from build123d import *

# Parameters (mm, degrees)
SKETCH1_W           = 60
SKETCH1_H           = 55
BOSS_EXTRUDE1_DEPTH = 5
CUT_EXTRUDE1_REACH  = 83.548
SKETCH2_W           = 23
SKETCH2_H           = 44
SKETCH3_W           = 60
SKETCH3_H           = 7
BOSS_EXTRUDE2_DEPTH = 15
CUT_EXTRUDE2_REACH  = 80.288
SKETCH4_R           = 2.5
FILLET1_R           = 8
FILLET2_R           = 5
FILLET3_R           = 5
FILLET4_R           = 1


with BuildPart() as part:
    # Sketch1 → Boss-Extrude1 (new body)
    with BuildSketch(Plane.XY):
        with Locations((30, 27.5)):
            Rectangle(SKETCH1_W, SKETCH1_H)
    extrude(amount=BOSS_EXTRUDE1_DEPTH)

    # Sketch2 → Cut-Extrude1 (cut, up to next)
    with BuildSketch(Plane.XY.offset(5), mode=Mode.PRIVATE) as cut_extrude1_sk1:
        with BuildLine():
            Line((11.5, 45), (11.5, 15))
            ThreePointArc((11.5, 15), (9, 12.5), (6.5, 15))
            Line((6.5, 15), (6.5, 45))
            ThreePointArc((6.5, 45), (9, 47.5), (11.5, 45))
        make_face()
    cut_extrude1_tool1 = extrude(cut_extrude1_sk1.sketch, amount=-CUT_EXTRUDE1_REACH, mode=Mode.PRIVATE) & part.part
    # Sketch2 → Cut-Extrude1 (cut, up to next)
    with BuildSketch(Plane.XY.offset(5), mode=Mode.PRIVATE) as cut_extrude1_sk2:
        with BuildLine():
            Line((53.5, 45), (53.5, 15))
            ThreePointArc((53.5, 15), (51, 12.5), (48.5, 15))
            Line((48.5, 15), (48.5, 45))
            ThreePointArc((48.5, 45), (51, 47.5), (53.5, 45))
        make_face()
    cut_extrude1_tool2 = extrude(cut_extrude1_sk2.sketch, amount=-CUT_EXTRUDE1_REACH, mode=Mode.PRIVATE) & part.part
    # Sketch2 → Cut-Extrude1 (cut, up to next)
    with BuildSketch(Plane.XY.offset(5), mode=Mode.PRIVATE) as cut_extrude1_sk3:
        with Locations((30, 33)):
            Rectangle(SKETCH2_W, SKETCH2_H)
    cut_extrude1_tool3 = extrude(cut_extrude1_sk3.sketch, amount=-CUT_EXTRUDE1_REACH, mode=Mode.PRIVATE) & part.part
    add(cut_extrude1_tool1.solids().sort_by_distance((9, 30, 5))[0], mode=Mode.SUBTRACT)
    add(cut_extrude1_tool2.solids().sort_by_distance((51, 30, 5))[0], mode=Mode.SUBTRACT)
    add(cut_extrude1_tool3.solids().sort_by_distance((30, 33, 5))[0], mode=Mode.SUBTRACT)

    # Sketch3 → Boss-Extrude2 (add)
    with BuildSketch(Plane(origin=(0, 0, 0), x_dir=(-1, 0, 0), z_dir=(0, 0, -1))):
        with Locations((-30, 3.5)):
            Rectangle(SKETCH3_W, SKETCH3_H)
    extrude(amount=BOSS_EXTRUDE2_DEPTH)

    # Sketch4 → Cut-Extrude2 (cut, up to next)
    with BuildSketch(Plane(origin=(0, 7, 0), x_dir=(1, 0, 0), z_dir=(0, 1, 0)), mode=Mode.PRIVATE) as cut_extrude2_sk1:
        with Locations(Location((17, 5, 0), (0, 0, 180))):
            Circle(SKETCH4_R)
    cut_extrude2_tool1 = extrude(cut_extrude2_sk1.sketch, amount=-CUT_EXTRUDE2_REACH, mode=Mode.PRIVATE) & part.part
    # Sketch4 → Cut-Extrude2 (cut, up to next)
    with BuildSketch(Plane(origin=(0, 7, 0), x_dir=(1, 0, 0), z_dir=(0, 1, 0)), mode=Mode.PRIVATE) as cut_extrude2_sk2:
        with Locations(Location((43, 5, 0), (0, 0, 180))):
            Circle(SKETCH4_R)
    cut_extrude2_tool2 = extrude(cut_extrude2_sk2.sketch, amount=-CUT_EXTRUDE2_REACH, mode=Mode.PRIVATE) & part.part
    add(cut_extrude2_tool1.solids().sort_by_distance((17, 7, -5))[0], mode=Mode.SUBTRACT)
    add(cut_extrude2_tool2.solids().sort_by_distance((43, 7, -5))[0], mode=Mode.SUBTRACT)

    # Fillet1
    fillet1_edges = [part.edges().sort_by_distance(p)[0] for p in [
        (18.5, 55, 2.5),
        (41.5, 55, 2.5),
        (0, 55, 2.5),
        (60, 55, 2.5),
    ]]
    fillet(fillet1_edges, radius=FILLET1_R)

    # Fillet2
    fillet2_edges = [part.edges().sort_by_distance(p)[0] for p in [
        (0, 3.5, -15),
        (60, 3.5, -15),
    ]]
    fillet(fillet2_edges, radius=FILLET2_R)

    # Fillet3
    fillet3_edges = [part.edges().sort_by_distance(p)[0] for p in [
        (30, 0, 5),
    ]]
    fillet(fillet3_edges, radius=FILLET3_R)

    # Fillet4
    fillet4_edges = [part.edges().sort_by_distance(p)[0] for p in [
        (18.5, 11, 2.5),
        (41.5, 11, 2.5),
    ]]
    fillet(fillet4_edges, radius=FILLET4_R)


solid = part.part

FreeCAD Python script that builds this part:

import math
import FreeCAD as App
import Part
import Sketcher
from FreeCAD import Vector


def edges_at(feature, points):
    """Names of the edges that pass closest to the given points."""
    edges = feature.Shape.Edges
    near = lambda p: min(range(len(edges)), key=lambda i: edges[i].distToShape(Part.Vertex(*p))[0])
    return sorted({f"Edge{near(p) + 1}" for p in points})

doc = App.newDocument("Part")
params = doc.addObject("Spreadsheet::Sheet", "Params")
for row, (alias, value) in enumerate([
    ("sketch1_width", "60 mm"),
    ("sketch1_height", "55 mm"),
    ("pad1_length", "5 mm"),
    ("sketch2_radius", "2.5 mm"),
    ("sketch2_height", "30 mm"),
    ("sketch3_radius", "2.5 mm"),
    ("sketch3_height", "30 mm"),
    ("sketch4_width", "23 mm"),
    ("sketch4_height", "44 mm"),
    ("sketch5_width", "60 mm"),
    ("sketch5_height", "7 mm"),
    ("pad2_length", "15 mm"),
    ("sketch6_diameter", "5 mm"),
    ("sketch7_diameter", "5 mm"),
    ("fillet_radius", "8 mm"),
    ("fillet2_radius", "5 mm"),
    ("fillet3_radius", "5 mm"),
    ("fillet4_radius", "1 mm"),
], start=1):
    params.set(f"A{row}", alias)
    params.set(f"B{row}", "=" + value)
    params.setAlias(f"B{row}", alias)

body = doc.addObject("PartDesign::Body", "Body")

# Sketch on XY plane
sketch1 = body.newObject("Sketcher::SketchObject", "Sketch")
sketch1.AttachmentSupport = (doc.getObject("XY_Plane"), [""])
sketch1.MapMode = "FlatFace"
sketch1.addGeometry([
    Part.LineSegment(Vector(0, 55, 0), Vector(0, 0, 0)),
    Part.LineSegment(Vector(0, 0, 0), Vector(60, 0, 0)),
    Part.LineSegment(Vector(60, 0, 0), Vector(60, 55, 0)),
    Part.LineSegment(Vector(60, 55, 0), Vector(0, 55, 0)),
], False)
sketch1.addConstraint([
    Sketcher.Constraint("Coincident", 0, 2, 1, 1),
    Sketcher.Constraint("Coincident", 1, 2, 2, 1),
    Sketcher.Constraint("Coincident", 2, 2, 3, 1),
    Sketcher.Constraint("Coincident", 3, 2, 0, 1),
    Sketcher.Constraint("Vertical", 0),
    Sketcher.Constraint("Horizontal", 1),
    Sketcher.Constraint("Vertical", 2),
    Sketcher.Constraint("Horizontal", 3),
    Sketcher.Constraint("Coincident", 0, 2, -1, 1),
    Sketcher.Constraint("DistanceX", 1, 1, 1, 2, 60.0),
    Sketcher.Constraint("DistanceY", 0, 2, 0, 1, 55.0),
])
sketch1.setExpression("Constraints[9]", "Params.sketch1_width")
sketch1.setExpression("Constraints[10]", "Params.sketch1_height")
pad1 = body.newObject("PartDesign::Pad", "Pad")
pad1.Profile = sketch1
pad1.setExpression("Length", "Params.pad1_length")

# Sketch on XY plane
sketch2 = body.newObject("Sketcher::SketchObject", "Sketch001")
sketch2.AttachmentSupport = (doc.getObject("XY_Plane"), [""])
sketch2.MapMode = "FlatFace"
sketch2.AttachmentOffset = App.Placement(Vector(0, 0, 5), App.Rotation())
sketch2.addGeometry([
    Part.LineSegment(Vector(11.5, 15, 0), Vector(11.5, 45, 0)),
    Part.ArcOfCircle(Part.Circle(Vector(9, 45, 0), Vector(0, 0, 1), 2.5), math.radians(0), math.radians(180)),
    Part.LineSegment(Vector(6.5, 45, 0), Vector(6.5, 15, 0)),
    Part.ArcOfCircle(Part.Circle(Vector(9, 15, 0), Vector(0, 0, 1), 2.5), math.radians(180), math.radians(360)),
], False)
sketch2.addConstraint([
    Sketcher.Constraint("Tangent", 0, 2, 1, 1),
    Sketcher.Constraint("Tangent", 1, 2, 2, 1),
    Sketcher.Constraint("Tangent", 2, 2, 3, 1),
    Sketcher.Constraint("Tangent", 3, 2, 0, 1),
    Sketcher.Constraint("Vertical", 0),
    Sketcher.Constraint("Vertical", 2),
    Sketcher.Constraint("Radius", 1, 2.5),
    Sketcher.Constraint("DistanceY", 0, 1, 0, 2, 30.0),
    Sketcher.Constraint("DistanceX", -1, 1, 1, 3, 9.0),
    Sketcher.Constraint("DistanceY", -1, 1, 1, 3, 45.0),
])
sketch2.setExpression("Constraints[6]", "Params.sketch2_radius")
sketch2.setExpression("Constraints[7]", "Params.sketch2_height")
pocket1 = body.newObject("PartDesign::Pocket", "Pocket")
pocket1.Profile = sketch2
pocket1.Type = "UpToFirst"

# Sketch on XY plane
sketch3 = body.newObject("Sketcher::SketchObject", "Sketch002")
sketch3.AttachmentSupport = (doc.getObject("XY_Plane"), [""])
sketch3.MapMode = "FlatFace"
sketch3.AttachmentOffset = App.Placement(Vector(0, 0, 5), App.Rotation())
sketch3.addGeometry([
    Part.LineSegment(Vector(53.5, 15, 0), Vector(53.5, 45, 0)),
    Part.ArcOfCircle(Part.Circle(Vector(51, 45, 0), Vector(0, 0, 1), 2.5), math.radians(0), math.radians(180)),
    Part.LineSegment(Vector(48.5, 45, 0), Vector(48.5, 15, 0)),
    Part.ArcOfCircle(Part.Circle(Vector(51, 15, 0), Vector(0, 0, 1), 2.5), math.radians(180), math.radians(360)),
], False)
sketch3.addConstraint([
    Sketcher.Constraint("Tangent", 0, 2, 1, 1),
    Sketcher.Constraint("Tangent", 1, 2, 2, 1),
    Sketcher.Constraint("Tangent", 2, 2, 3, 1),
    Sketcher.Constraint("Tangent", 3, 2, 0, 1),
    Sketcher.Constraint("Vertical", 0),
    Sketcher.Constraint("Vertical", 2),
    Sketcher.Constraint("Radius", 1, 2.5),
    Sketcher.Constraint("DistanceY", 0, 1, 0, 2, 30.0),
    Sketcher.Constraint("DistanceX", -1, 1, 1, 3, 51.0),
    Sketcher.Constraint("DistanceY", -1, 1, 1, 3, 45.0),
])
sketch3.setExpression("Constraints[6]", "Params.sketch3_radius")
sketch3.setExpression("Constraints[7]", "Params.sketch3_height")
pocket2 = body.newObject("PartDesign::Pocket", "Pocket001")
pocket2.Profile = sketch3
pocket2.Type = "UpToFirst"

# Sketch on XY plane
sketch4 = body.newObject("Sketcher::SketchObject", "Sketch003")
sketch4.AttachmentSupport = (doc.getObject("XY_Plane"), [""])
sketch4.MapMode = "FlatFace"
sketch4.AttachmentOffset = App.Placement(Vector(0, 0, 5), App.Rotation())
sketch4.addGeometry([
    Part.LineSegment(Vector(18.5, 55, 0), Vector(18.5, 11, 0)),
    Part.LineSegment(Vector(18.5, 11, 0), Vector(41.5, 11, 0)),
    Part.LineSegment(Vector(41.5, 11, 0), Vector(41.5, 55, 0)),
    Part.LineSegment(Vector(41.5, 55, 0), Vector(18.5, 55, 0)),
], False)
sketch4.addConstraint([
    Sketcher.Constraint("Coincident", 0, 2, 1, 1),
    Sketcher.Constraint("Coincident", 1, 2, 2, 1),
    Sketcher.Constraint("Coincident", 2, 2, 3, 1),
    Sketcher.Constraint("Coincident", 3, 2, 0, 1),
    Sketcher.Constraint("Vertical", 0),
    Sketcher.Constraint("Horizontal", 1),
    Sketcher.Constraint("Vertical", 2),
    Sketcher.Constraint("Horizontal", 3),
    Sketcher.Constraint("DistanceX", 1, 1, 1, 2, 23.0),
    Sketcher.Constraint("DistanceY", 0, 2, 0, 1, 44.0),
    Sketcher.Constraint("DistanceY", -1, 1, 0, 2, 11.0),
    Sketcher.Constraint("DistanceX", -1, 1, 0, 2, 18.5),
])
sketch4.setExpression("Constraints[8]", "Params.sketch4_width")
sketch4.setExpression("Constraints[9]", "Params.sketch4_height")
pocket3 = body.newObject("PartDesign::Pocket", "Pocket002")
pocket3.Profile = sketch4
pocket3.Type = "UpToFirst"

# Sketch on XY plane
sketch5 = body.newObject("Sketcher::SketchObject", "Sketch004")
sketch5.AttachmentSupport = (doc.getObject("XY_Plane"), [""])
sketch5.MapMode = "FlatFace"
sketch5.addGeometry([
    Part.LineSegment(Vector(60, 7, 0), Vector(60, 0, 0)),
    Part.LineSegment(Vector(60, 0, 0), Vector(0, 0, 0)),
    Part.LineSegment(Vector(0, 0, 0), Vector(0, 7, 0)),
    Part.LineSegment(Vector(0, 7, 0), Vector(60, 7, 0)),
], False)
sketch5.addConstraint([
    Sketcher.Constraint("Coincident", 0, 2, 1, 1),
    Sketcher.Constraint("Coincident", 1, 2, 2, 1),
    Sketcher.Constraint("Coincident", 2, 2, 3, 1),
    Sketcher.Constraint("Coincident", 3, 2, 0, 1),
    Sketcher.Constraint("Vertical", 0),
    Sketcher.Constraint("Horizontal", 1),
    Sketcher.Constraint("Vertical", 2),
    Sketcher.Constraint("Horizontal", 3),
    Sketcher.Constraint("Coincident", 1, 2, -1, 1),
    Sketcher.Constraint("DistanceX", 1, 2, 1, 1, 60.0),
    Sketcher.Constraint("DistanceY", 0, 2, 0, 1, 7.0),
])
sketch5.setExpression("Constraints[9]", "Params.sketch5_width")
sketch5.setExpression("Constraints[10]", "Params.sketch5_height")
pad2 = body.newObject("PartDesign::Pad", "Pad001")
pad2.Profile = sketch5
pad2.setExpression("Length", "Params.pad2_length")
pad2.Reversed = True

# Sketch on XZ plane
sketch6 = body.newObject("Sketcher::SketchObject", "Sketch005")
sketch6.AttachmentSupport = (doc.getObject("XZ_Plane"), [""])
sketch6.MapMode = "FlatFace"
sketch6.AttachmentOffset = App.Placement(Vector(0, 0, -7), App.Rotation())
sketch6.addGeometry(Part.Circle(Vector(17, -5, 0), Vector(0, 0, 1), 2.5), False)
sketch6.addConstraint([
    Sketcher.Constraint("Diameter", 0, 5.0),
    Sketcher.Constraint("DistanceX", -1, 1, 0, 3, 17.0),
    Sketcher.Constraint("DistanceY", 0, 3, -1, 1, 5.0),
])
sketch6.setExpression("Constraints[0]", "Params.sketch6_diameter")
pocket4 = body.newObject("PartDesign::Pocket", "Pocket003")
pocket4.Profile = sketch6
pocket4.Type = "UpToFirst"
pocket4.Reversed = True

# Sketch on XZ plane
sketch7 = body.newObject("Sketcher::SketchObject", "Sketch006")
sketch7.AttachmentSupport = (doc.getObject("XZ_Plane"), [""])
sketch7.MapMode = "FlatFace"
sketch7.AttachmentOffset = App.Placement(Vector(0, 0, -7), App.Rotation())
sketch7.addGeometry(Part.Circle(Vector(43, -5, 0), Vector(0, 0, 1), 2.5), False)
sketch7.addConstraint([
    Sketcher.Constraint("Diameter", 0, 5.0),
    Sketcher.Constraint("DistanceX", -1, 1, 0, 3, 43.0),
    Sketcher.Constraint("DistanceY", 0, 3, -1, 1, 5.0),
])
sketch7.setExpression("Constraints[0]", "Params.sketch7_diameter")
pocket5 = body.newObject("PartDesign::Pocket", "Pocket004")
pocket5.Profile = sketch7
pocket5.Type = "UpToFirst"
pocket5.Reversed = True
doc.recompute()

fillet = body.newObject("PartDesign::Fillet", "Fillet")
fillet.Base = (pocket5, edges_at(pocket5, [
    (18.5, 55, 2.5),
    (41.5, 55, 2.5),
    (0, 55, 2.5),
    (60, 55, 2.5),
]))
fillet.setExpression("Radius", "Params.fillet_radius")
doc.recompute()

fillet2 = body.newObject("PartDesign::Fillet", "Fillet001")
fillet2.Base = (fillet, edges_at(fillet, [(0, 3.5, -15), (60, 3.5, -15)]))
fillet2.setExpression("Radius", "Params.fillet2_radius")
doc.recompute()

fillet3 = body.newObject("PartDesign::Fillet", "Fillet002")
fillet3.Base = (fillet2, edges_at(fillet2, [(30, 0, 5)]))
fillet3.setExpression("Radius", "Params.fillet3_radius")
doc.recompute()

fillet4 = body.newObject("PartDesign::Fillet", "Fillet003")
fillet4.Base = (fillet3, edges_at(fillet3, [(18.5, 11, 2.5), (41.5, 11, 2.5)]))
fillet4.setExpression("Radius", "Params.fillet4_radius")

doc.recompute()
